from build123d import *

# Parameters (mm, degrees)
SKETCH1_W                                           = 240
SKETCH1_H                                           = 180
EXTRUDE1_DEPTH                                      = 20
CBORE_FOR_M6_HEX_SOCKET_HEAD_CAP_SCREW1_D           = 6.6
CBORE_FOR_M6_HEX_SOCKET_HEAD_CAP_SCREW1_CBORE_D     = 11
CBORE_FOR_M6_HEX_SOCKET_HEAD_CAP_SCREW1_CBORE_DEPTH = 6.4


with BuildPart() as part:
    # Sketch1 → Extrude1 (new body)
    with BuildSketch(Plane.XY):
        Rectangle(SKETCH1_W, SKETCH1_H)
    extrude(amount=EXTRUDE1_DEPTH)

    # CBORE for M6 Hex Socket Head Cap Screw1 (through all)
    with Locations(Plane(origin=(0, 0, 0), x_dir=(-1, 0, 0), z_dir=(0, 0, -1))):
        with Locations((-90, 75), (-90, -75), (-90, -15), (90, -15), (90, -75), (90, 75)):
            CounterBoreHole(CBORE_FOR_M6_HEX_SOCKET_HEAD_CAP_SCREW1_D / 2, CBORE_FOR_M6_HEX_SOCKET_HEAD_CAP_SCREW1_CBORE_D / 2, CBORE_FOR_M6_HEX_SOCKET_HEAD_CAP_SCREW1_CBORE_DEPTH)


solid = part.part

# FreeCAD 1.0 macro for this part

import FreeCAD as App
import Part
import Sketcher
from FreeCAD import Vector


def add_polygon(sketch, points):
    """Adds a closed chain of lines whose ends are joined by coincident constraints."""
    first, n = sketch.GeometryCount, len(points)
    for a, b in zip(points, points[1:] + points[:1]):
        sketch.addGeometry(Part.LineSegment(App.Vector(*a, 0), App.Vector(*b, 0)), False)
    for i in range(n):
        sketch.addConstraint(Sketcher.Constraint("Coincident", first + i, 2, first + (i + 1) % n, 1))

doc = App.newDocument("Part")
body = doc.addObject("PartDesign::Body", "Body")

# Sketch on XY plane
sketch1 = doc.addObject("Sketcher::SketchObject", "Sketch")
body.addObject(sketch1)
sketch1.AttachmentSupport = (doc.XY_Plane, [""])
sketch1.MapMode = "FlatFace"
add_polygon(sketch1, [(-120, 90), (-120, -90), (120, -90), (120, 90)])  # lines 0-3
sketch1.addConstraint(Sketcher.Constraint("Vertical", 0))
sketch1.addConstraint(Sketcher.Constraint("Horizontal", 1))
sketch1.addConstraint(Sketcher.Constraint("Vertical", 2))
sketch1.addConstraint(Sketcher.Constraint("Horizontal", 3))
sketch1.addConstraint(Sketcher.Constraint("Symmetric", 0, 2, 2, 2, -1, 1))
sketch1.addConstraint(Sketcher.Constraint("DistanceX", 1, 1, 1, 2, 240.0))
sketch1.addConstraint(Sketcher.Constraint("DistanceY", 0, 2, 0, 1, 180.0))
pad1 = doc.addObject("PartDesign::Pad", "Pad")
body.addObject(pad1)
pad1.Profile = sketch1
pad1.Length = 20

# Sketch on XY plane
sketch2 = doc.addObject("Sketcher::SketchObject", "Sketch001")
body.addObject(sketch2)
sketch2.AttachmentSupport = (doc.XY_Plane, [""])
sketch2.MapMode = "FlatFace"
sketch2.addGeometry(Part.Circle(Vector(90, 75, 0), Vector(0, 0, 1), 3.3), False)
sketch2.addGeometry(Part.Circle(Vector(90, -75, 0), Vector(0, 0, 1), 3.3), False)
sketch2.addGeometry(Part.Circle(Vector(90, -15, 0), Vector(0, 0, 1), 3.3), False)
sketch2.addGeometry(Part.Circle(Vector(-90, -15, 0), Vector(0, 0, 1), 3.3), False)
sketch2.addGeometry(Part.Circle(Vector(-90, -75, 0), Vector(0, 0, 1), 3.3), False)
sketch2.addGeometry(Part.Circle(Vector(-90, 75, 0), Vector(0, 0, 1), 3.3), False)
sketch2.addConstraint(Sketcher.Constraint("Equal", 0, 1))
sketch2.addConstraint(Sketcher.Constraint("Equal", 1, 2))
sketch2.addConstraint(Sketcher.Constraint("Equal", 2, 3))
sketch2.addConstraint(Sketcher.Constraint("Equal", 3, 4))
sketch2.addConstraint(Sketcher.Constraint("Equal", 4, 5))
sketch2.addConstraint(Sketcher.Constraint("Symmetric", 0, 3, 4, 3, -1, 1))
sketch2.addConstraint(Sketcher.Constraint("Symmetric", 1, 3, 5, 3, -1, 1))
sketch2.addConstraint(Sketcher.Constraint("Symmetric", 2, 3, 3, 3, -2))
sketch2.addConstraint(Sketcher.Constraint("Symmetric", 1, 3, 4, 3, -2))
sketch2.addConstraint(Sketcher.Constraint("Vertical", 1, 3, 2, 3))
sketch2.addConstraint(Sketcher.Constraint("Diameter", 0, 6.6))
sketch2.addConstraint(Sketcher.Constraint("DistanceX", -1, 1, 0, 3, 90.0))
sketch2.addConstraint(Sketcher.Constraint("DistanceY", -1, 1, 0, 3, 75.0))
sketch2.addConstraint(Sketcher.Constraint("DistanceY", 2, 3, -1, 1, 15.0))
doc.recompute()
hole = doc.addObject("PartDesign::Hole", "Hole")
body.addObject(hole)
hole.Profile = sketch2
hole.ThreadType = "None"
hole.Diameter = 6.6
hole.DepthType = "ThroughAll"
hole.HoleCutType = "Counterbore"
hole.HoleCutDiameter = 11
hole.HoleCutDepth = 6.4
hole.Reversed = True

doc.recompute()
